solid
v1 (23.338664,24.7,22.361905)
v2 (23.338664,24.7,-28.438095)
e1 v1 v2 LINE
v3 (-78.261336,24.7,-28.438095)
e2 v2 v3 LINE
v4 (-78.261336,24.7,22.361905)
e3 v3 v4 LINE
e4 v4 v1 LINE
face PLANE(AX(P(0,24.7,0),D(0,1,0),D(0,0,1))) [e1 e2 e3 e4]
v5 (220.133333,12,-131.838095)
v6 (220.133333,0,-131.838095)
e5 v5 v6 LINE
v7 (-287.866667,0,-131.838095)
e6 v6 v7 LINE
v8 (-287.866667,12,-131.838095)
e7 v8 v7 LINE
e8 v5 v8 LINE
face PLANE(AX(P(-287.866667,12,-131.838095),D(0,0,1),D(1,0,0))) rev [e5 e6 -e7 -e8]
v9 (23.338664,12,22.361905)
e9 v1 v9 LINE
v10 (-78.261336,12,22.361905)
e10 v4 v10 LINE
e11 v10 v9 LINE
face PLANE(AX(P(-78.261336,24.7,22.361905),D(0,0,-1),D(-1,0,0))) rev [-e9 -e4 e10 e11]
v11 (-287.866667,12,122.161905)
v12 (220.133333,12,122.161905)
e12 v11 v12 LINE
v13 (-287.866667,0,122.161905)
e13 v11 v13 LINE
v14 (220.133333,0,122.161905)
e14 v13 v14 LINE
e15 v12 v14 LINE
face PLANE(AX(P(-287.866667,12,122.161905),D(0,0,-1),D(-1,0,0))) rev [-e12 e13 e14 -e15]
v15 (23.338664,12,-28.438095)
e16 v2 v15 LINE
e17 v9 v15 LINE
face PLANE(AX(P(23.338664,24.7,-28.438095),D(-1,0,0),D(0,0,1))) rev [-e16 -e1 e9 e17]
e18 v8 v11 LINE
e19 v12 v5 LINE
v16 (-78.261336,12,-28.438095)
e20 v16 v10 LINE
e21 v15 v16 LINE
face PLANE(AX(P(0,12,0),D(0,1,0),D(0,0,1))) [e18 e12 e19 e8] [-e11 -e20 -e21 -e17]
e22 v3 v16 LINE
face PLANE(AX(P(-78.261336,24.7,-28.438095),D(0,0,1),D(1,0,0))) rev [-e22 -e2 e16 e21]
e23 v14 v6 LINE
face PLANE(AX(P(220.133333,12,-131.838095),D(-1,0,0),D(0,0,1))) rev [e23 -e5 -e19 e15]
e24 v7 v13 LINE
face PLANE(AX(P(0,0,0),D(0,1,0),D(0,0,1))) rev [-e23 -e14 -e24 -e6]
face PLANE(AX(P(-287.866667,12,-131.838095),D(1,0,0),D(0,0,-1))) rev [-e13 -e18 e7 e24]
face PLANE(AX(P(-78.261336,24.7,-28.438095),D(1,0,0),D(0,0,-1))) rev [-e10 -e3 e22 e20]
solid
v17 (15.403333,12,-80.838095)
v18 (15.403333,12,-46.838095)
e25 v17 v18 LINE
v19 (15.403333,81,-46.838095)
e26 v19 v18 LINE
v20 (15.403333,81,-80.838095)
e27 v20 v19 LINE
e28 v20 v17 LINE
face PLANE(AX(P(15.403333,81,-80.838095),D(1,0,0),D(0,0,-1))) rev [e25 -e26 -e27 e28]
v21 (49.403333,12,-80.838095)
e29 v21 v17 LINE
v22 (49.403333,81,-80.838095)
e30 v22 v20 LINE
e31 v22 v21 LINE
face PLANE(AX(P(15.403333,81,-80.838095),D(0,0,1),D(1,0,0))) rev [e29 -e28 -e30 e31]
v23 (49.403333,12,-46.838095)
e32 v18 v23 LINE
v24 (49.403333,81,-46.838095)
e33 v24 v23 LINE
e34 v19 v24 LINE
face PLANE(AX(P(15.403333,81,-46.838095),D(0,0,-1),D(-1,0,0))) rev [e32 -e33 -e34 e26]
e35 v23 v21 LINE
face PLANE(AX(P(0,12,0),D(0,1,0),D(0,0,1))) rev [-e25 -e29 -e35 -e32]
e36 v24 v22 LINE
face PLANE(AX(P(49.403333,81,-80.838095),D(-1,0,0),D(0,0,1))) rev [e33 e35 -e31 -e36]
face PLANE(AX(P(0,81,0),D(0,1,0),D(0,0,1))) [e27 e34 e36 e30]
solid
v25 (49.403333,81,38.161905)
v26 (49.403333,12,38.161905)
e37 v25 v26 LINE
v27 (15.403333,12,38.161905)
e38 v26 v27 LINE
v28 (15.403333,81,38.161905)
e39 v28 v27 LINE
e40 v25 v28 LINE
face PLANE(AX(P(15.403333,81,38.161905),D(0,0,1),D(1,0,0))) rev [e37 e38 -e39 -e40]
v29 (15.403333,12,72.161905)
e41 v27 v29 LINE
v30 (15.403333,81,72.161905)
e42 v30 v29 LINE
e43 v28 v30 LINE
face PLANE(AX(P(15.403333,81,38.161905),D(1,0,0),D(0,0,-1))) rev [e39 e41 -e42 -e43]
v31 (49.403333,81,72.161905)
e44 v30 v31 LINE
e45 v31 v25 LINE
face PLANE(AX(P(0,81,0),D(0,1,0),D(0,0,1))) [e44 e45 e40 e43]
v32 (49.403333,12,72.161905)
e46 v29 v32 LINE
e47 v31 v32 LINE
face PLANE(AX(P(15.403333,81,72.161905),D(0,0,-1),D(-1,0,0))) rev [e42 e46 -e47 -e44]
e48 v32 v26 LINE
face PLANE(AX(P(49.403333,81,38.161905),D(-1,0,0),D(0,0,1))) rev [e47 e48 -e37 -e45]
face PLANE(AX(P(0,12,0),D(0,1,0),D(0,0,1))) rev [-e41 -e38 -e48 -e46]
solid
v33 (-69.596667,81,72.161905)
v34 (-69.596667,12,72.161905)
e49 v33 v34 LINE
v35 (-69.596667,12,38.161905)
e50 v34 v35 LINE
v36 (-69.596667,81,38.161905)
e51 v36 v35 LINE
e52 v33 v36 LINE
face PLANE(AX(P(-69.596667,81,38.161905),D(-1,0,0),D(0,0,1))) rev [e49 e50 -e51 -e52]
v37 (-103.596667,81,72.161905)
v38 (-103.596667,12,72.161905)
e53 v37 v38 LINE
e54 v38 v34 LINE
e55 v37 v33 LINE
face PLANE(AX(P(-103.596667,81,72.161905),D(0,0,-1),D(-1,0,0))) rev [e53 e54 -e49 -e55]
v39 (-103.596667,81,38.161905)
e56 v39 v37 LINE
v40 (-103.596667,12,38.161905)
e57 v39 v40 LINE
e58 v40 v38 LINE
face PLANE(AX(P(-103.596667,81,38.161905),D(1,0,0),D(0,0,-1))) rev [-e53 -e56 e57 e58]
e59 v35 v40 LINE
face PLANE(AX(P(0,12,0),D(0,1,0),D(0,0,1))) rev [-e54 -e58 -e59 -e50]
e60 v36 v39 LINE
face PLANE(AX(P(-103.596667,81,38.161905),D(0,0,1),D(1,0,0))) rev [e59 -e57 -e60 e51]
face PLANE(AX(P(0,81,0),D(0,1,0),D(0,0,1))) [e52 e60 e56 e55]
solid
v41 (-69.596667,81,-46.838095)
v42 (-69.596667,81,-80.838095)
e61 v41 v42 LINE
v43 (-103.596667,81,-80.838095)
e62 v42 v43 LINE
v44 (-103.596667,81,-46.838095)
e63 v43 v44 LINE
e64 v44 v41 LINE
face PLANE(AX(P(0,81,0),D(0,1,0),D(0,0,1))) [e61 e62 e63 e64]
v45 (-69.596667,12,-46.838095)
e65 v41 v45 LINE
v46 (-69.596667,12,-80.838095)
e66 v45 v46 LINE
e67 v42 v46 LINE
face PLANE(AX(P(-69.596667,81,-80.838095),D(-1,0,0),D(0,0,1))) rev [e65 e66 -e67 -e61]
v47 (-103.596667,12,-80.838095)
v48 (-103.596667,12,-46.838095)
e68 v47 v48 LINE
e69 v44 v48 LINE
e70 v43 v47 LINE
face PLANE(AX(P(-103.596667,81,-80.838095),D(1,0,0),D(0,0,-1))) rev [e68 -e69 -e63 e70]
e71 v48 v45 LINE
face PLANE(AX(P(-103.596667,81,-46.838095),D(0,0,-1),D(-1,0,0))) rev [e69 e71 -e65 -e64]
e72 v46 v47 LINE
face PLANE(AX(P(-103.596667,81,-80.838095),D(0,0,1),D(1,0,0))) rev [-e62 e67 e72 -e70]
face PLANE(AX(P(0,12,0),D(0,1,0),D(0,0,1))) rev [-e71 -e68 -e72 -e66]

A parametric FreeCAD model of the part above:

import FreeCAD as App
import Part
import Sketcher
from FreeCAD import Vector
Q = App.Units.Quantity

doc = App.newDocument("Part")
body = doc.addObject("PartDesign::Body", "Body")

# Sketch on XZ plane
sketch1 = body.newObject("Sketcher::SketchObject", "Sketch")
sketch1.AttachmentSupport = (doc.getObject("XZ_Plane"), [""])
sketch1.MapMode = "FlatFace"
sketch1.addGeometry([
    Part.LineSegment(Vector(-288, -132, 0), Vector(-288, 122, 0)),
    Part.LineSegment(Vector(-288, 122, 0), Vector(220, 122, 0)),
    Part.LineSegment(Vector(220, 122, 0), Vector(220, -132, 0)),
    Part.LineSegment(Vector(220, -132, 0), Vector(-288, -132, 0)),
], False)
sketch1.addConstraint([
    Sketcher.Constraint("Coincident", 0, 2, 1, 1),
    Sketcher.Constraint("Coincident", 1, 2, 2, 1),
    Sketcher.Constraint("Coincident", 2, 2, 3, 1),
    Sketcher.Constraint("Coincident", 3, 2, 0, 1),
    Sketcher.Constraint("Vertical", 0),
    Sketcher.Constraint("Horizontal", 1),
    Sketcher.Constraint("Vertical", 2),
    Sketcher.Constraint("Horizontal", 3),
    Sketcher.Constraint("DistanceX", 1, 1, 1, 2, Q("20 in")),
    Sketcher.Constraint("DistanceY", 0, 1, 0, 2, Q("10 in")),
    Sketcher.Constraint("DistanceX", 0, 2, -1, 1, Q("287.866667 mm")),
    Sketcher.Constraint("DistanceY", -1, 1, 0, 2, Q("122.161905 mm")),
])
pad1 = body.newObject("PartDesign::Pad", "Pad")
pad1.Profile = sketch1
pad1.Length = 12
pad1.Reversed = True

# Sketch on XZ plane
sketch2 = body.newObject("Sketcher::SketchObject", "Sketch001")
sketch2.AttachmentSupport = (doc.getObject("XZ_Plane"), [""])
sketch2.MapMode = "FlatFace"
sketch2.AttachmentOffset = App.Placement(Vector(0, 0, -12), App.Rotation())
sketch2.addGeometry([
    Part.LineSegment(Vector(-78, -28, 0), Vector(-78, 22, 0)),
    Part.LineSegment(Vector(-78, 22, 0), Vector(23, 22, 0)),
    Part.LineSegment(Vector(23, 22, 0), Vector(23, -28, 0)),
    Part.LineSegment(Vector(23, -28, 0), Vector(-78, -28, 0)),
], False)
sketch2.addConstraint([
    Sketcher.Constraint("Coincident", 0, 2, 1, 1),
    Sketcher.Constraint("Coincident", 1, 2, 2, 1),
    Sketcher.Constraint("Coincident", 2, 2, 3, 1),
    Sketcher.Constraint("Coincident", 3, 2, 0, 1),
    Sketcher.Constraint("Vertical", 0),
    Sketcher.Constraint("Horizontal", 1),
    Sketcher.Constraint("Vertical", 2),
    Sketcher.Constraint("Horizontal", 3),
    Sketcher.Constraint("DistanceX", 1, 1, 1, 2, Q("4 in")),
    Sketcher.Constraint("DistanceY", 0, 1, 0, 2, Q("2 in")),
    Sketcher.Constraint("DistanceX", 0, 2, -1, 1, Q("78.261336 mm")),
    Sketcher.Constraint("DistanceY", -1, 1, 0, 2, Q("22.361905 mm")),
])
pad2 = body.newObject("PartDesign::Pad", "Pad001")
pad2.Profile = sketch2
pad2.Length = Q("0.5 in")
pad2.Reversed = True
body2 = doc.addObject("PartDesign::Body", "Body001")

# Sketch on XZ plane
sketch3 = body2.newObject("Sketcher::SketchObject", "Sketch002")
sketch3.AttachmentSupport = (doc.getObject("XZ_Plane001"), [""])
sketch3.MapMode = "FlatFace"
sketch3.AttachmentOffset = App.Placement(Vector(0, 0, -12), App.Rotation())
sketch3.addGeometry([
    Part.LineSegment(Vector(-104, -81, 0), Vector(-104, -47, 0)),
    Part.LineSegment(Vector(-104, -47, 0), Vector(-70, -47, 0)),
    Part.LineSegment(Vector(-70, -47, 0), Vector(-70, -81, 0)),
    Part.LineSegment(Vector(-70, -81, 0), Vector(-104, -81, 0)),
], False)
sketch3.addConstraint([
    Sketcher.Constraint("Coincident", 0, 2, 1, 1),
    Sketcher.Constraint("Coincident", 1, 2, 2, 1),
    Sketcher.Constraint("Coincident", 2, 2, 3, 1),
    Sketcher.Constraint("Coincident", 3, 2, 0, 1),
    Sketcher.Constraint("Vertical", 0),
    Sketcher.Constraint("Horizontal", 1),
    Sketcher.Constraint("Vertical", 2),
    Sketcher.Constraint("Horizontal", 3),
    Sketcher.Constraint("Equal", 3, 0),
    Sketcher.Constraint("DistanceX", 1, 1, 1, 2, Q("34 mm")),
    Sketcher.Constraint("DistanceX", 0, 2, -1, 1, Q("103.596667 mm")),
    Sketcher.Constraint("DistanceY", 0, 2, -1, 1, Q("46.838095 mm")),
])
pad3 = body2.newObject("PartDesign::Pad", "Pad002")
pad3.Profile = sketch3
pad3.Length = 69
pad3.Reversed = True
body3 = doc.addObject("PartDesign::Body", "Body002")

# Sketch on XZ plane
sketch4 = body3.newObject("Sketcher::SketchObject", "Sketch003")
sketch4.AttachmentSupport = (doc.getObject("XZ_Plane002"), [""])
sketch4.MapMode = "FlatFace"
sketch4.AttachmentOffset = App.Placement(Vector(0, 0, -12), App.Rotation())
sketch4.addGeometry([
    Part.LineSegment(Vector(15, -81, 0), Vector(15, -47, 0)),
    Part.LineSegment(Vector(15, -47, 0), Vector(49, -47, 0)),
    Part.LineSegment(Vector(49, -47, 0), Vector(49, -81, 0)),
    Part.LineSegment(Vector(49, -81, 0), Vector(15, -81, 0)),
], False)
sketch4.addConstraint([
    Sketcher.Constraint("Coincident", 0, 2, 1, 1),
    Sketcher.Constraint("Coincident", 1, 2, 2, 1),
    Sketcher.Constraint("Coincident", 2, 2, 3, 1),
    Sketcher.Constraint("Coincident", 3, 2, 0, 1),
    Sketcher.Constraint("Vertical", 0),
    Sketcher.Constraint("Horizontal", 1),
    Sketcher.Constraint("Vertical", 2),
    Sketcher.Constraint("Horizontal", 3),
    Sketcher.Constraint("Equal", 3, 0),
    Sketcher.Constraint("DistanceX", 1, 1, 1, 2, Q("34 mm")),
    Sketcher.Constraint("DistanceX", -1, 1, 0, 2, Q("15.403333 mm")),
    Sketcher.Constraint("DistanceY", 0, 2, -1, 1, Q("46.838095 mm")),
])
pad4 = body3.newObject("PartDesign::Pad", "Pad003")
pad4.Profile = sketch4
pad4.Length = 69
pad4.Reversed = True
body4 = doc.addObject("PartDesign::Body", "Body003")

# Sketch on XZ plane
sketch5 = body4.newObject("Sketcher::SketchObject", "Sketch004")
sketch5.AttachmentSupport = (doc.getObject("XZ_Plane003"), [""])
sketch5.MapMode = "FlatFace"
sketch5.AttachmentOffset = App.Placement(Vector(0, 0, -12), App.Rotation())
sketch5.addGeometry([
    Part.LineSegment(Vector(-104, 38, 0), Vector(-104, 72, 0)),
    Part.LineSegment(Vector(-104, 72, 0), Vector(-70, 72, 0)),
    Part.LineSegment(Vector(-70, 72, 0), Vector(-70, 38, 0)),
    Part.LineSegment(Vector(-70, 38, 0), Vector(-104, 38, 0)),
], False)
sketch5.addConstraint([
    Sketcher.Constraint("Coincident", 0, 2, 1, 1),
    Sketcher.Constraint("Coincident", 1, 2, 2, 1),
    Sketcher.Constraint("Coincident", 2, 2, 3, 1),
    Sketcher.Constraint("Coincident", 3, 2, 0, 1),
    Sketcher.Constraint("Vertical", 0),
    Sketcher.Constraint("Horizontal", 1),
    Sketcher.Constraint("Vertical", 2),
    Sketcher.Constraint("Horizontal", 3),
    Sketcher.Constraint("Equal", 3, 0),
    Sketcher.Constraint("DistanceX", 1, 1, 1, 2, Q("34 mm")),
    Sketcher.Constraint("DistanceX", 0, 2, -1, 1, Q("103.596667 mm")),
    Sketcher.Constraint("DistanceY", -1, 1, 0, 2, Q("72.161905 mm")),
])
pad5 = body4.newObject("PartDesign::Pad", "Pad004")
pad5.Profile = sketch5
pad5.Length = 69
pad5.Reversed = True
body5 = doc.addObject("PartDesign::Body", "Body004")

# Sketch on XZ plane
sketch6 = body5.newObject("Sketcher::SketchObject", "Sketch005")
sketch6.AttachmentSupport = (doc.getObject("XZ_Plane004"), [""])
sketch6.MapMode = "FlatFace"
sketch6.AttachmentOffset = App.Placement(Vector(0, 0, -12), App.Rotation())
sketch6.addGeometry([
    Part.LineSegment(Vector(15, 38, 0), Vector(15, 72, 0)),
    Part.LineSegment(Vector(15, 72, 0), Vector(49, 72, 0)),
    Part.LineSegment(Vector(49, 72, 0), Vector(49, 38, 0)),
    Part.LineSegment(Vector(49, 38, 0), Vector(15, 38, 0)),
], False)
sketch6.addConstraint([
    Sketcher.Constraint("Coincident", 0, 2, 1, 1),
    Sketcher.Constraint("Coincident", 1, 2, 2, 1),
    Sketcher.Constraint("Coincident", 2, 2, 3, 1),
    Sketcher.Constraint("Coincident", 3, 2, 0, 1),
    Sketcher.Constraint("Vertical", 0),
    Sketcher.Constraint("Horizontal", 1),
    Sketcher.Constraint("Vertical", 2),
    Sketcher.Constraint("Horizontal", 3),
    Sketcher.Constraint("Equal", 3, 0),
    Sketcher.Constraint("DistanceX", 1, 1, 1, 2, Q("34 mm")),
    Sketcher.Constraint("DistanceX", -1, 1, 0, 2, Q("15.403333 mm")),
    Sketcher.Constraint("DistanceY", -1, 1, 0, 2, Q("72.161905 mm")),
])
pad6 = body5.newObject("PartDesign::Pad", "Pad005")
pad6.Profile = sketch6
pad6.Length = 69
pad6.Reversed = True

doc.recompute()
